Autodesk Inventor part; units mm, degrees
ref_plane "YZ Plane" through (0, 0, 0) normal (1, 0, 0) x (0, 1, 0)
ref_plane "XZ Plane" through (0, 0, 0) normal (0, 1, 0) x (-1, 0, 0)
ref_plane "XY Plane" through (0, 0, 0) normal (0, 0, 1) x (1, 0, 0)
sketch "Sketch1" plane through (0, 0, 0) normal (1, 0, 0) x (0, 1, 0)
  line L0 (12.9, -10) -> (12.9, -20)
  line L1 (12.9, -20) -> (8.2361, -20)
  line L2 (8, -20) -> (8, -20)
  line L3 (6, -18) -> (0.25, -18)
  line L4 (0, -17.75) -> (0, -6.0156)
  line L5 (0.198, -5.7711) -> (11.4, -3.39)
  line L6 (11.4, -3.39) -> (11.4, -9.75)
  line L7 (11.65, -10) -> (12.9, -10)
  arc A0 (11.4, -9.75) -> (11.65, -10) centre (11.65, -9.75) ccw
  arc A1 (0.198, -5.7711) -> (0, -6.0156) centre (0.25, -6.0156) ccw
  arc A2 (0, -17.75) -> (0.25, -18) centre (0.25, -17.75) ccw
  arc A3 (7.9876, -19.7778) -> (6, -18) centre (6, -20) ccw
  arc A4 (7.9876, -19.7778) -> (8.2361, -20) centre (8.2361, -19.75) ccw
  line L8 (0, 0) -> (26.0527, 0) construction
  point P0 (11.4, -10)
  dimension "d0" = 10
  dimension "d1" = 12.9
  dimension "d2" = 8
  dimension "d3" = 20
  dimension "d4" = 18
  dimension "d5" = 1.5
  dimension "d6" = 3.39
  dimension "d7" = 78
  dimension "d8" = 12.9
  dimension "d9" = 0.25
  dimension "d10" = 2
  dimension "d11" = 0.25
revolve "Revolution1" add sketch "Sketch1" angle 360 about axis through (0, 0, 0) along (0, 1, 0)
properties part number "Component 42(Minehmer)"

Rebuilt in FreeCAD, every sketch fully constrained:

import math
import FreeCAD as App
import Part
import Sketcher

V = App.Vector
Q = App.Units.Quantity

doc = App.newDocument("Part")
body = doc.addObject("PartDesign::Body", "Body")

# Sketch on YZ plane
sketch1 = doc.addObject("Sketcher::SketchObject", "Sketch")
body.addObject(sketch1)
sketch1.AttachmentSupport = (doc.YZ_Plane, [""])
sketch1.MapMode = "FlatFace"
sketch1.addGeometry([
    Part.LineSegment(V(12.9, -20, 0), V(12.9, -10, 0)),  # 0
    Part.LineSegment(V(12.9, -10, 0), V(11.65, -10, 0)),  # 1
    Part.ArcOfCircle(Part.Circle(V(11.65, -9.75, 0), V(0, 0, 1), 0.25), math.radians(180), math.radians(270)),  # 2
    Part.LineSegment(V(11.4, -9.75, 0), V(11.4, -3.39, 0)),  # 3
    Part.LineSegment(V(11.4, -3.39, 0), V(0.2, -5.77, 0)),  # 4
    Part.ArcOfCircle(Part.Circle(V(0.25, -6.02, 0), V(0, 0, 1), 0.25), math.radians(102), math.radians(180)),  # 5
    Part.LineSegment(V(0, -6.02, 0), V(0, -17.75, 0)),  # 6
    Part.ArcOfCircle(Part.Circle(V(0.25, -17.75, 0), V(0, 0, 1), 0.25), math.radians(180), math.radians(270)),  # 7
    Part.LineSegment(V(0.25, -18, 0), V(6, -18, 0)),  # 8
    Part.ArcOfCircle(Part.Circle(V(6, -20, 0), V(0, 0, 1), 2), math.radians(6), math.radians(90)),  # 9
    Part.ArcOfCircle(Part.Circle(V(8.24, -19.75, 0), V(0, 0, 1), 0.25), math.radians(-174), math.radians(-90)),  # 10
    Part.LineSegment(V(8.24, -20, 0), V(12.9, -20, 0)),  # 11
], False)
sketch1.addConstraint([
    Sketcher.Constraint("Coincident", 0, 2, 1, 1),
    Sketcher.Constraint("Tangent", 1, 2, 2, 2),
    Sketcher.Constraint("Tangent", 2, 1, 3, 1),
    Sketcher.Constraint("Coincident", 3, 2, 4, 1),
    Sketcher.Constraint("Tangent", 4, 2, 5, 1),
    Sketcher.Constraint("Tangent", 5, 2, 6, 1),
    Sketcher.Constraint("Tangent", 6, 2, 7, 1),
    Sketcher.Constraint("Tangent", 7, 2, 8, 1),
    Sketcher.Constraint("Tangent", 8, 2, 9, 2),
    Sketcher.Constraint("Tangent", 9, 1, 10, 1),
    Sketcher.Constraint("Tangent", 10, 2, 11, 1),
    Sketcher.Constraint("Coincident", 11, 2, 0, 1),
    Sketcher.Constraint("Vertical", 0),
    Sketcher.Constraint("Horizontal", 1),
    Sketcher.Constraint("Vertical", 3),
    Sketcher.Constraint("Vertical", 6),
    Sketcher.Constraint("Horizontal", 8),
    Sketcher.Constraint("Horizontal", 11),
    Sketcher.Constraint("Equal", 2, 5),
    Sketcher.Constraint("Equal", 5, 7),
    Sketcher.Constraint("Equal", 7, 10),
    Sketcher.Constraint("PointOnObject", 5, 2, -2),
    Sketcher.Constraint("Horizontal", 9, 3, 10, 2),
    Sketcher.Constraint("Radius", 9, Q("2 mm")),
    Sketcher.Constraint("DistanceY", 0, 1, 0, 2, Q("10 mm")),
    Sketcher.Constraint("Radius", 2, Q("0.25 mm")),
    Sketcher.Constraint("DistanceY", 9, 3, -1, 1, Q("20 mm")),
    Sketcher.Constraint("DistanceX", -1, 1, 0, 2, Q("12.9 mm")),
    Sketcher.Constraint("DistanceX", 2, 1, 0, 2, Q("1.5 mm")),
    Sketcher.Constraint("DistanceY", 3, 2, -1, 1, Q("3.39 mm")),
    Sketcher.Constraint("Angle", 4, Q("-167.9998 deg")),
    Sketcher.Constraint("DistanceX", -1, 1, 9, 3, Q("6 mm")),
])
revolution = doc.addObject("PartDesign::Revolution", "Revolution")
body.addObject(revolution)
revolution.Profile = sketch1
revolution.ReferenceAxis = (sketch1, ["H_Axis"])
revolution.Angle = 360

doc.recompute()
